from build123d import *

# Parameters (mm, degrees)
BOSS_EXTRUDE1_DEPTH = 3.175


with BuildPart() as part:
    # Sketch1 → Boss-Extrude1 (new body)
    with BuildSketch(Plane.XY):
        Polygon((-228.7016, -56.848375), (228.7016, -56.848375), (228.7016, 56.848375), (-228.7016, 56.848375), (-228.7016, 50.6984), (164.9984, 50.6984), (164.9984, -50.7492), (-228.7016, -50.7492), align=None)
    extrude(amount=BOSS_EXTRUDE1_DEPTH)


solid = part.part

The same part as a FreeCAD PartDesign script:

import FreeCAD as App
import Part
import Sketcher
Q = App.Units.Quantity


def add_polygon(sketch, points):
    """Adds a closed chain of lines whose ends are joined by coincident constraints."""
    first, n = sketch.GeometryCount, len(points)
    for a, b in zip(points, points[1:] + points[:1]):
        sketch.addGeometry(Part.LineSegment(App.Vector(*a, 0), App.Vector(*b, 0)), False)
    for i in range(n):
        sketch.addConstraint(Sketcher.Constraint("Coincident", first + i, 2, first + (i + 1) % n, 1))

doc = App.newDocument("Part")
body = doc.addObject("PartDesign::Body", "Body")

# Sketch on XY plane
sketch1 = body.newObject("Sketcher::SketchObject", "Sketch")
sketch1.AttachmentSupport = (doc.getObject("XY_Plane"), [""])
sketch1.MapMode = "FlatFace"
add_polygon(sketch1, [(-229, -57), (229, -57), (229, 57), (-229, 57), (-229, 51), (165, 51), (165, -51), (-229, -51)])  # lines 0-7
sketch1.addConstraint(Sketcher.Constraint("Horizontal", 0))
sketch1.addConstraint(Sketcher.Constraint("Vertical", 1))
sketch1.addConstraint(Sketcher.Constraint("Horizontal", 2))
sketch1.addConstraint(Sketcher.Constraint("Vertical", 3))
sketch1.addConstraint(Sketcher.Constraint("Horizontal", 4))
sketch1.addConstraint(Sketcher.Constraint("Vertical", 5))
sketch1.addConstraint(Sketcher.Constraint("Horizontal", 6))
sketch1.addConstraint(Sketcher.Constraint("Vertical", 7))
sketch1.addConstraint(Sketcher.Constraint("Symmetric", 0, 2, 2, 2, -1, 1))
sketch1.addConstraint(Sketcher.Constraint("Vertical", 3, 2, 6, 2))
sketch1.addConstraint(Sketcher.Constraint("DistanceX", 4, 1, 4, 2, Q("15.5 in")))
sketch1.addConstraint(Sketcher.Constraint("DistanceX", 0, 1, 0, 2, Q("18.008 in")))
sketch1.addConstraint(Sketcher.Constraint("DistanceY", 5, 2, 5, 1, Q("3.994 in")))
sketch1.addConstraint(Sketcher.Constraint("DistanceY", -1, 1, 3, 2, Q("1.996 in")))
sketch1.addConstraint(Sketcher.Constraint("DistanceY", 1, 1, 1, 2, 113.69675))
pad1 = body.newObject("PartDesign::Pad", "Pad")
pad1.Profile = sketch1
pad1.Length = Q("0.125 in")

doc.recompute()
